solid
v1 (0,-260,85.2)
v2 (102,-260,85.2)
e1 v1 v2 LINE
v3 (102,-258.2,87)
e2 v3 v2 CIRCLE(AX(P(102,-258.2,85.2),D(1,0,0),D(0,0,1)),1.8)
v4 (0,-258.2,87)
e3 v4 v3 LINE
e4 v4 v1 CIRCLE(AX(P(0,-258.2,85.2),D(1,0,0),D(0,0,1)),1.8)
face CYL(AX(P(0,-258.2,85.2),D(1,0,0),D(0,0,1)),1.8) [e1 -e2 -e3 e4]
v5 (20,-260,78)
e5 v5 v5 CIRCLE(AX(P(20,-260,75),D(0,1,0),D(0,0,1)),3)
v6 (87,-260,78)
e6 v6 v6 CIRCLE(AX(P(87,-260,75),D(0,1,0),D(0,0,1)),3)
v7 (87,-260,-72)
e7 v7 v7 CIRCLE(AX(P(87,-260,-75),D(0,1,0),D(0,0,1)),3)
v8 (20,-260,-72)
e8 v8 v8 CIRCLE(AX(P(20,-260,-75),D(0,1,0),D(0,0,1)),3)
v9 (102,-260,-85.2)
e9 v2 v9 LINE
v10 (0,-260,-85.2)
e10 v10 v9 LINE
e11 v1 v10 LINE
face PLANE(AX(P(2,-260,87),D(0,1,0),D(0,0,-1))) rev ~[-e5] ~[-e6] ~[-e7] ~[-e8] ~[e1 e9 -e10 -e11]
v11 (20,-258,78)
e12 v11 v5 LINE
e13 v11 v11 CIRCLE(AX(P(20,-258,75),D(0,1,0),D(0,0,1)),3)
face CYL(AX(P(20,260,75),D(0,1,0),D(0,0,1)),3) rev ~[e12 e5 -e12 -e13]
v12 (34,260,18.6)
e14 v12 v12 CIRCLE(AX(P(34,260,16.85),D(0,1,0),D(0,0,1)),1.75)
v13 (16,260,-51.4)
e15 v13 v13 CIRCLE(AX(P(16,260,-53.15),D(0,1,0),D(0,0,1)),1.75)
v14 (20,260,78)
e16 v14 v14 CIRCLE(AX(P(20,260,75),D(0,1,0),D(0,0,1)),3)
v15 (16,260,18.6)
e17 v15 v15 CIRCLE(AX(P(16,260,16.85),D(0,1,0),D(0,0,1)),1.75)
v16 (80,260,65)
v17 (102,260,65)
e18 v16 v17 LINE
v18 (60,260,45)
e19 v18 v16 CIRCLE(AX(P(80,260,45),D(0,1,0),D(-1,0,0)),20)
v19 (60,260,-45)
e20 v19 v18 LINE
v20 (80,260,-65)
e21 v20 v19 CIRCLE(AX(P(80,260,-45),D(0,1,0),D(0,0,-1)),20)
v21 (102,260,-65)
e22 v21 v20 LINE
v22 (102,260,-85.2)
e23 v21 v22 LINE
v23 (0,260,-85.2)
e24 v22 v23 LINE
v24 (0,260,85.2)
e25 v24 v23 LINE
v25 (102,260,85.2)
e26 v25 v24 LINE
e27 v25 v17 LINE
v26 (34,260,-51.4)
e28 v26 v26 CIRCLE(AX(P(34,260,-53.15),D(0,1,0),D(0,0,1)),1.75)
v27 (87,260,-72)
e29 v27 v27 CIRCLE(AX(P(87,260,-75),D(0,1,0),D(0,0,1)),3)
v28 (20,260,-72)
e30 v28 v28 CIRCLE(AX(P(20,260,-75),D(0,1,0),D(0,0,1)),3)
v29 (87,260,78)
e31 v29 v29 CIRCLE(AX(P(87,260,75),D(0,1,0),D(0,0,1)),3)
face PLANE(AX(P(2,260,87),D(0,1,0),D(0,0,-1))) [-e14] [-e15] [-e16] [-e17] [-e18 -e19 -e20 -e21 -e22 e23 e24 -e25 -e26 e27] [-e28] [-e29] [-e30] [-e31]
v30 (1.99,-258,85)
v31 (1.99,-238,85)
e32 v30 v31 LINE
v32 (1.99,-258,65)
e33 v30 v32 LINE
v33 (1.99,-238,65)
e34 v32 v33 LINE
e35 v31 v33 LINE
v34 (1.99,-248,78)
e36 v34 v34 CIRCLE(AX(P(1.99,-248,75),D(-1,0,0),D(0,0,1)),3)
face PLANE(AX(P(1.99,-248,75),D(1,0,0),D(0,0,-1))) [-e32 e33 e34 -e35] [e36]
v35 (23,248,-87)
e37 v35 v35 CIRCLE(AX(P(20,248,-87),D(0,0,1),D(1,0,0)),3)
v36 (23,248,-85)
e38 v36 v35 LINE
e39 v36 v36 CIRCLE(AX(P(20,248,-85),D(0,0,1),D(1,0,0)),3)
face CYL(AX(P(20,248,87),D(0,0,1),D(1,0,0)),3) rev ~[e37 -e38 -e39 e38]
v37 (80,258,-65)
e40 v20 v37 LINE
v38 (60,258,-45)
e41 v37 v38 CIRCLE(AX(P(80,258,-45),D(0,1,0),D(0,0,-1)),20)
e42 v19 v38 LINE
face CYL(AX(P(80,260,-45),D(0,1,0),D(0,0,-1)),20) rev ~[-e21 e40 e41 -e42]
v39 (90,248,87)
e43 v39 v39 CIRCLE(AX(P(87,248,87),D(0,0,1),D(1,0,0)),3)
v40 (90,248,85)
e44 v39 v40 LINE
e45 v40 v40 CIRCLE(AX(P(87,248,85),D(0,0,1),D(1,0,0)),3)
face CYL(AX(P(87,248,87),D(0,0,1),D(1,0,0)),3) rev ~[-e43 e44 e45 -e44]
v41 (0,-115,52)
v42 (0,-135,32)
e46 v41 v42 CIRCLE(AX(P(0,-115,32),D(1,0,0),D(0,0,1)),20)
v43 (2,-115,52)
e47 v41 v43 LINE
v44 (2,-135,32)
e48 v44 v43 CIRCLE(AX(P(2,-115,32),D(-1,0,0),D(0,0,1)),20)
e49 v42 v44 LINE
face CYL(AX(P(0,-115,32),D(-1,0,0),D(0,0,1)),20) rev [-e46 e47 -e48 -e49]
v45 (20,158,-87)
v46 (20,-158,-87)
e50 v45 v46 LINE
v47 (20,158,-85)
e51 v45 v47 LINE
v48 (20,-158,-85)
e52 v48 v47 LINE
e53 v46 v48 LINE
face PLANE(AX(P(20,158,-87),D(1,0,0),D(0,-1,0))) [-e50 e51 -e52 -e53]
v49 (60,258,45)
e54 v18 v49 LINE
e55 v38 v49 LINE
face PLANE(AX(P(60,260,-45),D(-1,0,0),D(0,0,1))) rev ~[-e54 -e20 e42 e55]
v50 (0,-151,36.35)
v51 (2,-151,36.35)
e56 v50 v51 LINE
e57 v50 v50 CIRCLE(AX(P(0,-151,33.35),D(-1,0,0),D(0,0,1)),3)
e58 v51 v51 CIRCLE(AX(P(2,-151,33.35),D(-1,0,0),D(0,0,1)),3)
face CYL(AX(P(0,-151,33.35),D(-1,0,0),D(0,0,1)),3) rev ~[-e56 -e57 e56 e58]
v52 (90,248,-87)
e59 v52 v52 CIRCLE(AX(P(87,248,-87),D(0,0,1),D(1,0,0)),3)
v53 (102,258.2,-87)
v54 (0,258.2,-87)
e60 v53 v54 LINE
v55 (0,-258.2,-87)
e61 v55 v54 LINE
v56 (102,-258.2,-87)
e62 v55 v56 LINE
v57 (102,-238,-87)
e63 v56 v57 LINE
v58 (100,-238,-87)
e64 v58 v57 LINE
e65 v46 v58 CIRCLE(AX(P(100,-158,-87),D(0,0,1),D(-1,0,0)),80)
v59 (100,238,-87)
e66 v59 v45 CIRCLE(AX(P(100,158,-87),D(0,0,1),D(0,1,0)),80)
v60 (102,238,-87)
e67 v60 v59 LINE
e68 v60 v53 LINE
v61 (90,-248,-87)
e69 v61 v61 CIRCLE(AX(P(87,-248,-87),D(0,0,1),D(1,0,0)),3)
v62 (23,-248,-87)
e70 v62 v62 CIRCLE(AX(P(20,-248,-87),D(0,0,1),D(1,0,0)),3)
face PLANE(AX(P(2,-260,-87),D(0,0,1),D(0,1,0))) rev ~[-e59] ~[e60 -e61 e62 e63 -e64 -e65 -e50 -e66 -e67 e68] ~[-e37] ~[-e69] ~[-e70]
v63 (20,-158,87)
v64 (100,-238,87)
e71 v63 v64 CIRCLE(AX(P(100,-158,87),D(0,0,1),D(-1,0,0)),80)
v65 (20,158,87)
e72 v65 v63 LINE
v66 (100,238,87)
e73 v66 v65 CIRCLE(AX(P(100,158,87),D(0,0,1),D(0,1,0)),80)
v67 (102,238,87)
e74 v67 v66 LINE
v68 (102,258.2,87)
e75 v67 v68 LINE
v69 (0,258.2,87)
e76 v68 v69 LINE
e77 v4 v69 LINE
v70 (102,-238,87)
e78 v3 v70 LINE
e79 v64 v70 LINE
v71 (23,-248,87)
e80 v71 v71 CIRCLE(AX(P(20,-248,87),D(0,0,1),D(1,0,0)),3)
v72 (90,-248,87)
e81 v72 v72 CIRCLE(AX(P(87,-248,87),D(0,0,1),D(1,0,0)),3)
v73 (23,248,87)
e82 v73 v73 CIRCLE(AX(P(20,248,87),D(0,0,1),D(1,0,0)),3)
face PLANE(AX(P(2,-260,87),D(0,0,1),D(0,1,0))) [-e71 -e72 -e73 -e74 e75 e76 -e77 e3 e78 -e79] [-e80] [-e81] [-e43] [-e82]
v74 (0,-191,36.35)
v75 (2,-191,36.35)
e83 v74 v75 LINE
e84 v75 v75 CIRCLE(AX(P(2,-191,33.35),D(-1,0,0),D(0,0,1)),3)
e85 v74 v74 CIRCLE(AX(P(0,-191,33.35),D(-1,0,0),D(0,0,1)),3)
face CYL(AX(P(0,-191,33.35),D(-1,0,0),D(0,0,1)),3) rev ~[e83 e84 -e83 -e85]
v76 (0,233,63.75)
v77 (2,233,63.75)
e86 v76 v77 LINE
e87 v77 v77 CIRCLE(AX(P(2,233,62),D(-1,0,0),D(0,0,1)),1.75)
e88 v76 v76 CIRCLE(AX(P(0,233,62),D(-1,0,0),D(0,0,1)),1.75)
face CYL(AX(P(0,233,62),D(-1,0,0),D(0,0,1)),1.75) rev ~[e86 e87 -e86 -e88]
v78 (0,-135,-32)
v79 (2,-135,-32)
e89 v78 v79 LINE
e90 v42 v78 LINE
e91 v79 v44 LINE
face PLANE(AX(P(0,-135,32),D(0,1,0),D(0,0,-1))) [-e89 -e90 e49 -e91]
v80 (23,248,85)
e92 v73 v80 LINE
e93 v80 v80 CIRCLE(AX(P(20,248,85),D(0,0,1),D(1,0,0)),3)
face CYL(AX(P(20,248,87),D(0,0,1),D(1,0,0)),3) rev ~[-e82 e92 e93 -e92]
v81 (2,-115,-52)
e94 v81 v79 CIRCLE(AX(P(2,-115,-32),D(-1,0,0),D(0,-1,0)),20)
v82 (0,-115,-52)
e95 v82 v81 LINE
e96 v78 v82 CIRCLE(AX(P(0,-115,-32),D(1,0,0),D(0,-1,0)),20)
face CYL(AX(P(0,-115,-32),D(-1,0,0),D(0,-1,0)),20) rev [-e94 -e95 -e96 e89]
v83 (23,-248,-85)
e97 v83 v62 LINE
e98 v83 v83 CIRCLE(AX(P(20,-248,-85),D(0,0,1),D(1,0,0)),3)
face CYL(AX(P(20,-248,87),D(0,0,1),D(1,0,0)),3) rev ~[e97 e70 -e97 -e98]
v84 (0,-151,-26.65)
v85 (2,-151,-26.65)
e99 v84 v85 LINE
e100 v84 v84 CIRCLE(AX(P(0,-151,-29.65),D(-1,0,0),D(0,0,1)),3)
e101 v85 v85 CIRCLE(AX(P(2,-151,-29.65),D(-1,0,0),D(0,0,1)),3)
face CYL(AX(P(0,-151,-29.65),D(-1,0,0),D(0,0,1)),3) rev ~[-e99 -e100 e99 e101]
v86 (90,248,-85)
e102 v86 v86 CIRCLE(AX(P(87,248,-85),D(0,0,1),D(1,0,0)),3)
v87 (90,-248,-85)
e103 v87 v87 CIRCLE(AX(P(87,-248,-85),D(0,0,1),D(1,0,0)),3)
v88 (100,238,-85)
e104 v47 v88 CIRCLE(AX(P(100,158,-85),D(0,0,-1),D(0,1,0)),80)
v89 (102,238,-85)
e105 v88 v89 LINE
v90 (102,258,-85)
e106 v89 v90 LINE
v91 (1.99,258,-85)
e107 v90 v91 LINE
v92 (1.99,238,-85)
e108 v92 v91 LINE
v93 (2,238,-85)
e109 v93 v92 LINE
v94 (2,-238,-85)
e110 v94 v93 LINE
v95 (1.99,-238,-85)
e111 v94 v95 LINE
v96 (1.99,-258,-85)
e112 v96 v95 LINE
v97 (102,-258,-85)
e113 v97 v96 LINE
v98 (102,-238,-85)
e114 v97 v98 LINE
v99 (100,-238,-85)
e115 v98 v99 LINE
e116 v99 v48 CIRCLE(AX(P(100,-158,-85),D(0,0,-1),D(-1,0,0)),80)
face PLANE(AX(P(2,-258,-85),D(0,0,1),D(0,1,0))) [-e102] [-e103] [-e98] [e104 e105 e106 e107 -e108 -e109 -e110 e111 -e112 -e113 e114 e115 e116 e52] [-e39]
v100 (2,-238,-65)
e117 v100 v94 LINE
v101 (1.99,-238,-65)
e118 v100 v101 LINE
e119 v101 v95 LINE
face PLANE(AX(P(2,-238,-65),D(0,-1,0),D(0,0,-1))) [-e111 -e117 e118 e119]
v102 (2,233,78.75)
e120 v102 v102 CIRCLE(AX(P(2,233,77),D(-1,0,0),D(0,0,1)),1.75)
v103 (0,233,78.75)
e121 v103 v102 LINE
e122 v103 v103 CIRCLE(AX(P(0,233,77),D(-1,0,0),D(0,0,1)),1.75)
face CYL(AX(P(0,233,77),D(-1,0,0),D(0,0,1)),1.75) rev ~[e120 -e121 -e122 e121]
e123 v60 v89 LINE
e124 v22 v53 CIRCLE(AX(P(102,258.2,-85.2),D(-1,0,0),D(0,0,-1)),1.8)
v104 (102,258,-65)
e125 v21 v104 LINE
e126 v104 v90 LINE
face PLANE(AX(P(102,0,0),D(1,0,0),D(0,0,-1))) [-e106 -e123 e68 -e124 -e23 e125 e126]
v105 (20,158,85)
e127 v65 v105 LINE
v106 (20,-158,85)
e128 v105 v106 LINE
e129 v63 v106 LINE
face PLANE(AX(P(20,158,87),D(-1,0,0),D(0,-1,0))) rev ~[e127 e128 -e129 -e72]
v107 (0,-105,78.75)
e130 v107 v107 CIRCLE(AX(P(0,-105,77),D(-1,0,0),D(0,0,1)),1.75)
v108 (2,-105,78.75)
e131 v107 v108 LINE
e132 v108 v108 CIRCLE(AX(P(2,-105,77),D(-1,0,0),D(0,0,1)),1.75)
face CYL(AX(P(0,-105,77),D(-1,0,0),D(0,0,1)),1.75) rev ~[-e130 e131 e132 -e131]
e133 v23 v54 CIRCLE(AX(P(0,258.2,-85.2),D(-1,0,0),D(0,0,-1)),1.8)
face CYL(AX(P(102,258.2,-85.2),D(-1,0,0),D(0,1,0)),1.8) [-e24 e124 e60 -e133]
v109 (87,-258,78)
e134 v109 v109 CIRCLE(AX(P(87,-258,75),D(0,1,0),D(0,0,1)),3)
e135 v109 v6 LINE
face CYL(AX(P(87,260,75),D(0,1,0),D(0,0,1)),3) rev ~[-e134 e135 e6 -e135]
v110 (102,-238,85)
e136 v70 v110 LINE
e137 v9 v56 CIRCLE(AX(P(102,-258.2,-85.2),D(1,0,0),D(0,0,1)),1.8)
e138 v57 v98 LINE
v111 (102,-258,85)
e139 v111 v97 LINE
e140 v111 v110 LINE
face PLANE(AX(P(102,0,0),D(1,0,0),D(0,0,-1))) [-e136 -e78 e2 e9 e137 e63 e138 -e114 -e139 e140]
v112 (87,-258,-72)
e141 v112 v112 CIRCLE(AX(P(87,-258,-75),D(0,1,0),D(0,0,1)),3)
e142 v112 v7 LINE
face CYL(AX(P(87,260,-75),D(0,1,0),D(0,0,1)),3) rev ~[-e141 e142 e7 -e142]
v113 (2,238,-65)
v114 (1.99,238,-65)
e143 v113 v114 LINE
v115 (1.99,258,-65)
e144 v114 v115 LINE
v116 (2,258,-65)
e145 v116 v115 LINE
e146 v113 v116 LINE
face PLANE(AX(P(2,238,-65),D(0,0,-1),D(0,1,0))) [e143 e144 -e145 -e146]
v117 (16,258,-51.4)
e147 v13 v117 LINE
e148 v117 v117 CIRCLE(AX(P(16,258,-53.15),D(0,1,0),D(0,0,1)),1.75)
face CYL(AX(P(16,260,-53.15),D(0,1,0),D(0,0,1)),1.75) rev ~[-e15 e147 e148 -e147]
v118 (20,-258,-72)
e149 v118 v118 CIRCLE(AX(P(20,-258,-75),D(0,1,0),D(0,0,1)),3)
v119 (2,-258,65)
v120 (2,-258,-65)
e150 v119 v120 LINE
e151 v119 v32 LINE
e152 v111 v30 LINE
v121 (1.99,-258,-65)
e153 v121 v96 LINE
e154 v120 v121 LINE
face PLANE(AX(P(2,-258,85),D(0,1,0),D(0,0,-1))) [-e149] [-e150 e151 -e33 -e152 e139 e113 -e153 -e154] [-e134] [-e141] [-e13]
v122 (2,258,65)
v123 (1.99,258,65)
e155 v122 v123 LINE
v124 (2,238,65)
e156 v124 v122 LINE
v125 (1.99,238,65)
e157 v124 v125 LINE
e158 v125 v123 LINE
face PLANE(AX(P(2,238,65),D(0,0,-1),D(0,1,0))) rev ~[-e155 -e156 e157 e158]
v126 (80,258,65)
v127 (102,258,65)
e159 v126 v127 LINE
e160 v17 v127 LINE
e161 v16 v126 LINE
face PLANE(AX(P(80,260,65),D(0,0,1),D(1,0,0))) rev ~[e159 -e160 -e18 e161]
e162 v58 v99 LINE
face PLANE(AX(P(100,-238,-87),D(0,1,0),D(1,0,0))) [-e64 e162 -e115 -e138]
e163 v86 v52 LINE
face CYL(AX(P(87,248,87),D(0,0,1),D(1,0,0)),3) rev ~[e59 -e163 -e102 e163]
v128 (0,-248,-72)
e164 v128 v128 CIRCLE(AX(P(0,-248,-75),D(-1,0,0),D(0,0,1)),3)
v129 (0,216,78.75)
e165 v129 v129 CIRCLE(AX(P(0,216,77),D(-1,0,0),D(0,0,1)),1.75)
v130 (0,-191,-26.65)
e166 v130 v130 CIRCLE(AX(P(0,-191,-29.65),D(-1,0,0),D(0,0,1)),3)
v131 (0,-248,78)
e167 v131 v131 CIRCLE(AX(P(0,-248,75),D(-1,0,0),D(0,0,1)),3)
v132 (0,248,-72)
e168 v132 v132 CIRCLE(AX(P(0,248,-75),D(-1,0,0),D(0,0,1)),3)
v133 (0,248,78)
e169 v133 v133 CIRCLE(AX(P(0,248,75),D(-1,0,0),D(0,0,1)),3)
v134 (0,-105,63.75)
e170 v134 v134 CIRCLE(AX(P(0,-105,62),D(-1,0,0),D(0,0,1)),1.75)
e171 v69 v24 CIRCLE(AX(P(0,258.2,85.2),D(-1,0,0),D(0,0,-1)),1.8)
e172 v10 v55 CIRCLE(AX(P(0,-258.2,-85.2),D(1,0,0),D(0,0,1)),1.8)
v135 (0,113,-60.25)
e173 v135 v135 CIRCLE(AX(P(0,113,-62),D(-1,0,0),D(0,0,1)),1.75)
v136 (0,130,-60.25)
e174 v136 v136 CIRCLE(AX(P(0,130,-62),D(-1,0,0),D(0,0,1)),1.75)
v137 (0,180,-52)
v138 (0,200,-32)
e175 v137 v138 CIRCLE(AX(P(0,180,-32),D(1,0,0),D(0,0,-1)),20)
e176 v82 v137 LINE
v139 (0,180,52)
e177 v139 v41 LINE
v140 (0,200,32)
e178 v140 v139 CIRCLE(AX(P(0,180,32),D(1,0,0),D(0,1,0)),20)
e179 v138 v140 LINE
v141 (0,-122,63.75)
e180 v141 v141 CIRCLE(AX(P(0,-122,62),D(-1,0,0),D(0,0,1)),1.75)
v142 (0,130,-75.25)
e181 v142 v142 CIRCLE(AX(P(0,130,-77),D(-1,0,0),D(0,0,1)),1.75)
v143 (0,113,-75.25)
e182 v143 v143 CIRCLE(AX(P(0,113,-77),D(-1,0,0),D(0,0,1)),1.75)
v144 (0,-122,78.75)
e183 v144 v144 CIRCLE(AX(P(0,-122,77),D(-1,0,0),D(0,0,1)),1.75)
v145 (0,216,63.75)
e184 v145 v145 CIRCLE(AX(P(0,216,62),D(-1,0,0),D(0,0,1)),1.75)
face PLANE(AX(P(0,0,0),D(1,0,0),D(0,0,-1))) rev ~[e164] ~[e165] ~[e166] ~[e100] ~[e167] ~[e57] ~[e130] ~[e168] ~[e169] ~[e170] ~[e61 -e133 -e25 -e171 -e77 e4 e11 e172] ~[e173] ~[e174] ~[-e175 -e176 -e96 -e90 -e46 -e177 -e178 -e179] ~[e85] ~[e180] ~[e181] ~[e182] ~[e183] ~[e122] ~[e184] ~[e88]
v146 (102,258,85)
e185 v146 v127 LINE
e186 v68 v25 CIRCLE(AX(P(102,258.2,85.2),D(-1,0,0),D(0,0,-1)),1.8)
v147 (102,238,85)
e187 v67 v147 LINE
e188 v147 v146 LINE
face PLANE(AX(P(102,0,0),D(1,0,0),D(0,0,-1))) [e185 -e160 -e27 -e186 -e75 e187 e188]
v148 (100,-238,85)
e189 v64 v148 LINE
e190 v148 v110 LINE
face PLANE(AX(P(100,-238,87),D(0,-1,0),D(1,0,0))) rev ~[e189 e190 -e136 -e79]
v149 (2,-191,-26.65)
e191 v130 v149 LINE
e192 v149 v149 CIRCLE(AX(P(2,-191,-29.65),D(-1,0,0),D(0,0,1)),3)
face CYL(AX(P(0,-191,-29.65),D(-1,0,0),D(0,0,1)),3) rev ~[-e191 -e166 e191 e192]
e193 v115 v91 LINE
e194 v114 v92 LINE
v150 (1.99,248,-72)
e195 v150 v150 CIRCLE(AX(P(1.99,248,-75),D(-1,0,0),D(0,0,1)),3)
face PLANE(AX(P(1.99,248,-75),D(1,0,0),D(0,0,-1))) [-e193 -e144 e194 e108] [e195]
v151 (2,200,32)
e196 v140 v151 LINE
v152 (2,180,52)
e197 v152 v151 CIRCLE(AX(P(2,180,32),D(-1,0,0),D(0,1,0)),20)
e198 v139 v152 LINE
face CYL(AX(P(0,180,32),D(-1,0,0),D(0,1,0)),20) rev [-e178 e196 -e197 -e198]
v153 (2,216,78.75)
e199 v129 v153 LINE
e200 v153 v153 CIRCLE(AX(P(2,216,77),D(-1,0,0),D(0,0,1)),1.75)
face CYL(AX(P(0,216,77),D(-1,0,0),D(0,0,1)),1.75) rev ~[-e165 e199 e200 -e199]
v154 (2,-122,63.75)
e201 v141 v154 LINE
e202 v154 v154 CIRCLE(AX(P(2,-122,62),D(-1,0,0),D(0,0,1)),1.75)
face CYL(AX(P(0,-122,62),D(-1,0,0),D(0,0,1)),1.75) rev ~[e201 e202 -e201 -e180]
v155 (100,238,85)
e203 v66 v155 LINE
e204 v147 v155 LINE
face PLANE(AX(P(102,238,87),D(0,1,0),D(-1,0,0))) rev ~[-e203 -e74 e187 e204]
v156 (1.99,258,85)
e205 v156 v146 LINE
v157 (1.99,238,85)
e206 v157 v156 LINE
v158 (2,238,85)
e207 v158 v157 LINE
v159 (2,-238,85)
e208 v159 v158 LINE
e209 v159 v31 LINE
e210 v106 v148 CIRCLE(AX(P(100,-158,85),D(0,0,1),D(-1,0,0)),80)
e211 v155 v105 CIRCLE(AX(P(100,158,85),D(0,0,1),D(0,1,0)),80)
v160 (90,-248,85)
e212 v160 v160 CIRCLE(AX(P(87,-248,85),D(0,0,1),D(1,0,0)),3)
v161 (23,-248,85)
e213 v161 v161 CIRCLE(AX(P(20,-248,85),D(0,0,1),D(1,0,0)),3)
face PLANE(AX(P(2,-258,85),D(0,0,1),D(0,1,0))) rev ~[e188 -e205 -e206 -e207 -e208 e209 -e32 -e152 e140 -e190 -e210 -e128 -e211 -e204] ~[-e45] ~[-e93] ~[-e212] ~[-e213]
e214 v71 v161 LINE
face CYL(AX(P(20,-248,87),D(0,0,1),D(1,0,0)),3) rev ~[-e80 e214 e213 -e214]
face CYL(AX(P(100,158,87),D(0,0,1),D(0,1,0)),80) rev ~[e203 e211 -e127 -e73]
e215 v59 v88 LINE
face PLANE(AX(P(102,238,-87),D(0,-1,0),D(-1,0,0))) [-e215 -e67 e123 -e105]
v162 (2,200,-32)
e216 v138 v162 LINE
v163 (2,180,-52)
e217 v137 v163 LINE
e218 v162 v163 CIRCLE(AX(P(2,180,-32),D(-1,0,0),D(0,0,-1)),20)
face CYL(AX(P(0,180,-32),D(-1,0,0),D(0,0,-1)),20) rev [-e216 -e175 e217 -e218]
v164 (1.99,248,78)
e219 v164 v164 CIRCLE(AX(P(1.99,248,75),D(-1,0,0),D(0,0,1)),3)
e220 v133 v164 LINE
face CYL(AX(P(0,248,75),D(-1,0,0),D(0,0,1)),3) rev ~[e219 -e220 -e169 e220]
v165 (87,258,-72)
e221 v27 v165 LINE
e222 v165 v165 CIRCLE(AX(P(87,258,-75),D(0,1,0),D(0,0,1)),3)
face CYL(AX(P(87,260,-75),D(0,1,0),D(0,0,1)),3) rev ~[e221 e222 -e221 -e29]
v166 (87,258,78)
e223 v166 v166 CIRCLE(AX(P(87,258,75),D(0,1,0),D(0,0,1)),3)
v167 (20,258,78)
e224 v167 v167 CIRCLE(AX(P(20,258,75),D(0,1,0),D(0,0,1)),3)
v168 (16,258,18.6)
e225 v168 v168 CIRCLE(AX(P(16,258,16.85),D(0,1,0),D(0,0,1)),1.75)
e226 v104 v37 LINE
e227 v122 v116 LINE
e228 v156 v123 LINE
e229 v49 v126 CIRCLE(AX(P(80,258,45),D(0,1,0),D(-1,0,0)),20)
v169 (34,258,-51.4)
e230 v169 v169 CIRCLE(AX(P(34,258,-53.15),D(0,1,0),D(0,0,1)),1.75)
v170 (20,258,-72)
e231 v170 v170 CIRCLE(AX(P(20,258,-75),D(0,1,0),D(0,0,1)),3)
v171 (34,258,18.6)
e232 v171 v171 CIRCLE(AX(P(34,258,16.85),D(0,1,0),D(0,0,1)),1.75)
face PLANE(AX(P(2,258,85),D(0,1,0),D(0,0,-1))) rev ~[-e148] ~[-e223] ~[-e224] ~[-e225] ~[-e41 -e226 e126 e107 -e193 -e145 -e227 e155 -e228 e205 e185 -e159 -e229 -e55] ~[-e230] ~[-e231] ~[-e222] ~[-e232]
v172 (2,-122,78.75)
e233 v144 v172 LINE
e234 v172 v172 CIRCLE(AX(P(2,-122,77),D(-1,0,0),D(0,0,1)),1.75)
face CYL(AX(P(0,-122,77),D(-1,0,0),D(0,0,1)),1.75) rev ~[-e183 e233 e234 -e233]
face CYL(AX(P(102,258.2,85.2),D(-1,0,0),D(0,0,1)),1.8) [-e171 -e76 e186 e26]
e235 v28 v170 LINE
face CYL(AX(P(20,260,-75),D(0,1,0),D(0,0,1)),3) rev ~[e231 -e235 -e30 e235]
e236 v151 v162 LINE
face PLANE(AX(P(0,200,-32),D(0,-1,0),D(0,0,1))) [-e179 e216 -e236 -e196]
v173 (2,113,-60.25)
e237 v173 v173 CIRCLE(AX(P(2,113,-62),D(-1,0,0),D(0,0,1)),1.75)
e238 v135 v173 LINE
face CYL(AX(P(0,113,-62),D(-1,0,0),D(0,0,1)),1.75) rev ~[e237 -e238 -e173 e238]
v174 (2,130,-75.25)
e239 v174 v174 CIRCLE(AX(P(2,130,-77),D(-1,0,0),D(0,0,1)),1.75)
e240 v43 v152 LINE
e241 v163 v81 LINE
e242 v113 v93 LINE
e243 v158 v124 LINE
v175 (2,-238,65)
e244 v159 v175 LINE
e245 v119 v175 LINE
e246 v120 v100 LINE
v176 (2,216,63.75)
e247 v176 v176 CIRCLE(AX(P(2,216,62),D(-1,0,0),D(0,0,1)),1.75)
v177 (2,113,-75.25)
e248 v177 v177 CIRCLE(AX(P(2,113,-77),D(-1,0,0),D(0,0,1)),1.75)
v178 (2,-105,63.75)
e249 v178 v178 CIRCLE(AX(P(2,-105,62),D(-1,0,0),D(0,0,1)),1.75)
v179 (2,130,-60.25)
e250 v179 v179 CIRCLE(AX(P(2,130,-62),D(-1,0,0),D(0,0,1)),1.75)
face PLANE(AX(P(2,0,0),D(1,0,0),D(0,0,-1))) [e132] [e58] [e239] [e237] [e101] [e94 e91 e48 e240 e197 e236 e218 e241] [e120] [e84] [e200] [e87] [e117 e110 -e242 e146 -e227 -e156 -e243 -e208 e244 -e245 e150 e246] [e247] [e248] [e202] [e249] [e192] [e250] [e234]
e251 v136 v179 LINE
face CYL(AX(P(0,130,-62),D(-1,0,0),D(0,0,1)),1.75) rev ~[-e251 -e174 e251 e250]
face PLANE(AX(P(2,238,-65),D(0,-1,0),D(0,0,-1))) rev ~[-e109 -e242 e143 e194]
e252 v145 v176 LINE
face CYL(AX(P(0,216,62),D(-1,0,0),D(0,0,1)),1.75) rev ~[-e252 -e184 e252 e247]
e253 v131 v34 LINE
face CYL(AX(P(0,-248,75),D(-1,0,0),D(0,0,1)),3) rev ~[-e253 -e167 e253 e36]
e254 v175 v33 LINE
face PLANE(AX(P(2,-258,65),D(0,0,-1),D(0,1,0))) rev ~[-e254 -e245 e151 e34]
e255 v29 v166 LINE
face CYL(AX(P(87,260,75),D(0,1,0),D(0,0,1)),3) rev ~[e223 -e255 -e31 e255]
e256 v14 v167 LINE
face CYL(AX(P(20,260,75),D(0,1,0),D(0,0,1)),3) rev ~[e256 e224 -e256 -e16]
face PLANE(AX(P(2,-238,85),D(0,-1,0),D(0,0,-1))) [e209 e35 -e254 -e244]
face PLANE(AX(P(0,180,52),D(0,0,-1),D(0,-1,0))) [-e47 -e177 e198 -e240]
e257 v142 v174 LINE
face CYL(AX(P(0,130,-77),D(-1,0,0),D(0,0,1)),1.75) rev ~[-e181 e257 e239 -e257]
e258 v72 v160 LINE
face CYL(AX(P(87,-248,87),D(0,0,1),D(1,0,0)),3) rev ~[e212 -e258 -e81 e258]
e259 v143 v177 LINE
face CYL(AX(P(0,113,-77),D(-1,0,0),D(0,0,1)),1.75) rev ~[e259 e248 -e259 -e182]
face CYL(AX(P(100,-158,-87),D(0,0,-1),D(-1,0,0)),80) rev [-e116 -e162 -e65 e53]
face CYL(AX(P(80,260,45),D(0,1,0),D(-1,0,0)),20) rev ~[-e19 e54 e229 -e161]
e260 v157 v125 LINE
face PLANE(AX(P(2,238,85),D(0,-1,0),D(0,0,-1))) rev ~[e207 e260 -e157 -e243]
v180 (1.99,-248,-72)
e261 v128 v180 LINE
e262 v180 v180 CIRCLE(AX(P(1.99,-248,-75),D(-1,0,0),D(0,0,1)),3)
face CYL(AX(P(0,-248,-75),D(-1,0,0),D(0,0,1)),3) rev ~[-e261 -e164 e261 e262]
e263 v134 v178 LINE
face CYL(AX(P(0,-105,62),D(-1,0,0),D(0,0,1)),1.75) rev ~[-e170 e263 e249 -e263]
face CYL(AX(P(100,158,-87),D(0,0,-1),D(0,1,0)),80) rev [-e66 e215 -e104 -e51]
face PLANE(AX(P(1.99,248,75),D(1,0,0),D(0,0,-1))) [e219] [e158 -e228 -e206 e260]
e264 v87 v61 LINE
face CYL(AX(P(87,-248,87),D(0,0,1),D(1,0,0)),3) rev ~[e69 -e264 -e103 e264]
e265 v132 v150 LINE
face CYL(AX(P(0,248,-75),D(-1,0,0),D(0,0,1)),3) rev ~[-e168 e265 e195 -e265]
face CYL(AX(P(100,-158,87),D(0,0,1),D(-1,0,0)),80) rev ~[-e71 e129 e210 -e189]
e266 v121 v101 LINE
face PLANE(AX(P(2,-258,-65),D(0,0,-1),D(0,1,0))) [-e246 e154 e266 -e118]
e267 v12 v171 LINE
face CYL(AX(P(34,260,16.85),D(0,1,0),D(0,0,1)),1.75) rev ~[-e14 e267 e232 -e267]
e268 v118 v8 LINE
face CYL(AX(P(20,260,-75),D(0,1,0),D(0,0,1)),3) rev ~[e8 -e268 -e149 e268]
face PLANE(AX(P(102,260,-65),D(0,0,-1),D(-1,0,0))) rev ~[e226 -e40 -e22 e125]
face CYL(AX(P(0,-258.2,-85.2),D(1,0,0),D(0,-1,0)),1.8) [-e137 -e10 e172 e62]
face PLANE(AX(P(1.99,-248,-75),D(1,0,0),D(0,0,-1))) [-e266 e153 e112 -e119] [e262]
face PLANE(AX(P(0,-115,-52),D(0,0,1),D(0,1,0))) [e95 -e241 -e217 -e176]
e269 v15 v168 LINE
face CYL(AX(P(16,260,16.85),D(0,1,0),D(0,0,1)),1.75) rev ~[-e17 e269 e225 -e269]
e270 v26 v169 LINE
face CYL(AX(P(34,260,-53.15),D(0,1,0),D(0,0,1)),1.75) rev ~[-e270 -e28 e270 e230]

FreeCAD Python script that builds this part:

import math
import FreeCAD as App
import Part
import Sketcher
from FreeCAD import Vector
Q = App.Units.Quantity


def edges_at(feature, points):
    """Names of the edges that pass closest to the given points."""
    edges = feature.Shape.Edges
    near = lambda p: min(range(len(edges)), key=lambda i: edges[i].distToShape(Part.Vertex(*p))[0])
    return sorted({f"Edge{near(p) + 1}" for p in points})

doc = App.newDocument("Part")
body = doc.addObject("PartDesign::Body", "Body")

sketch1 = body.newObject("Sketcher::SketchObject", "Sketch")
sketch1.AttachmentSupport = (doc.getObject("YZ_Plane"), [""])
sketch1.MapMode = "FlatFace"
sketch1.addGeometry([
    Part.LineSegment(Vector(260, 87, 0), Vector(-260, 87, 0)),
    Part.LineSegment(Vector(-260, 87, 0), Vector(-260, -87, 0)),
    Part.LineSegment(Vector(-260, -87, 0), Vector(260, -87, 0)),
    Part.LineSegment(Vector(260, -87, 0), Vector(260, 87, 0)),
], False)
sketch1.addConstraint([
    Sketcher.Constraint("Coincident", 0, 2, 1, 1),
    Sketcher.Constraint("Coincident", 1, 2, 2, 1),
    Sketcher.Constraint("Coincident", 2, 2, 3, 1),
    Sketcher.Constraint("Coincident", 3, 2, 0, 1),
    Sketcher.Constraint("Horizontal", 0),
    Sketcher.Constraint("Vertical", 1),
    Sketcher.Constraint("Horizontal", 2),
    Sketcher.Constraint("Vertical", 3),
    Sketcher.Constraint("Symmetric", 0, 2, 2, 2, -1, 1),
    Sketcher.Constraint("DistanceX", 0, 2, 0, 1, Q("520 mm")),
    Sketcher.Constraint("DistanceY", 1, 2, 1, 1, Q("174 mm")),
])
pad1 = body.newObject("PartDesign::Pad", "Pad")
pad1.Profile = sketch1
pad1.Length = 2

sketch2 = body.newObject("Sketcher::SketchObject", "Sketch001")
sketch2.AttachmentSupport = (doc.getObject("YZ_Plane"), [""])
sketch2.MapMode = "FlatFace"
sketch2.AttachmentOffset = App.Placement(Vector(0, 0, 2), App.Rotation())
sketch2.addGeometry([
    Part.LineSegment(Vector(260, 87, 0), Vector(-260, 87, 0)),
    Part.LineSegment(Vector(-260, 87, 0), Vector(-260, -87, 0)),
    Part.LineSegment(Vector(-260, -87, 0), Vector(260, -87, 0)),
    Part.LineSegment(Vector(260, -87, 0), Vector(260, 87, 0)),
    Part.LineSegment(Vector(-258, -85, 0), Vector(-258, 85, 0)),
    Part.LineSegment(Vector(-258, 85, 0), Vector(258, 85, 0)),
    Part.LineSegment(Vector(258, 85, 0), Vector(258, -85, 0)),
    Part.LineSegment(Vector(258, -85, 0), Vector(-258, -85, 0)),
], False)
sketch2.addConstraint([
    Sketcher.Constraint("Coincident", 0, 2, 1, 1),
    Sketcher.Constraint("Coincident", 1, 2, 2, 1),
    Sketcher.Constraint("Coincident", 2, 2, 3, 1),
    Sketcher.Constraint("Coincident", 3, 2, 0, 1),
    Sketcher.Constraint("Coincident", 4, 2, 5, 1),
    Sketcher.Constraint("Coincident", 5, 2, 6, 1),
    Sketcher.Constraint("Coincident", 6, 2, 7, 1),
    Sketcher.Constraint("Coincident", 7, 2, 4, 1),
    Sketcher.Constraint("Horizontal", 0),
    Sketcher.Constraint("Vertical", 1),
    Sketcher.Constraint("Horizontal", 2),
    Sketcher.Constraint("Vertical", 3),
    Sketcher.Constraint("Vertical", 4),
    Sketcher.Constraint("Horizontal", 5),
    Sketcher.Constraint("Vertical", 6),
    Sketcher.Constraint("Horizontal", 7),
    Sketcher.Constraint("Symmetric", 0, 2, 2, 2, -1, 1),
    Sketcher.Constraint("Symmetric", 4, 2, 6, 2, -1, 1),
    Sketcher.Constraint("DistanceX", 0, 2, 0, 1, Q("520 mm")),
    Sketcher.Constraint("DistanceX", 5, 1, 5, 2, Q("516 mm")),
    Sketcher.Constraint("DistanceY", 1, 2, 1, 1, Q("174 mm")),
    Sketcher.Constraint("DistanceY", 4, 1, 4, 2, Q("170 mm")),
])
pad2 = body.newObject("PartDesign::Pad", "Pad001")
pad2.Profile = sketch2
pad2.Length = 100

sketch3 = body.newObject("Sketcher::SketchObject", "Sketch002")
sketch3.AttachmentSupport = (doc.getObject("XY_Plane"), [""])
sketch3.MapMode = "FlatFace"
sketch3.AttachmentOffset = App.Placement(Vector(0, 0, -87), App.Rotation())
sketch3.addGeometry([
    Part.LineSegment(Vector(102, 238, 0), Vector(100, 238, 0)),
    Part.ArcOfCircle(Part.Circle(Vector(100, 158, 0), Vector(0, 0, 1), 80), math.radians(90), math.radians(180)),
    Part.LineSegment(Vector(20, 158, 0), Vector(20, -158, 0)),
    Part.ArcOfCircle(Part.Circle(Vector(100, -158, 0), Vector(0, 0, 1), 80), math.radians(180), math.radians(270)),
    Part.LineSegment(Vector(100, -238, 0), Vector(102, -238, 0)),
    Part.LineSegment(Vector(102, -238, 0), Vector(102, 238, 0)),
], False)
sketch3.addConstraint([
    Sketcher.Constraint("Tangent", 0, 2, 1, 1),
    Sketcher.Constraint("Tangent", 1, 2, 2, 1),
    Sketcher.Constraint("Tangent", 2, 2, 3, 1),
    Sketcher.Constraint("Tangent", 3, 2, 4, 1),
    Sketcher.Constraint("Coincident", 4, 2, 5, 1),
    Sketcher.Constraint("Coincident", 5, 2, 0, 1),
    Sketcher.Constraint("Horizontal", 0),
    Sketcher.Constraint("Vertical", 2),
    Sketcher.Constraint("Horizontal", 4),
    Sketcher.Constraint("Vertical", 5),
    Sketcher.Constraint("Equal", 1, 3),
    Sketcher.Constraint("Radius", 1, Q("80 mm")),
    Sketcher.Constraint("DistanceX", 0, 2, 0, 1, Q("2 mm")),
    Sketcher.Constraint("DistanceY", 2, 2, 2, 1, Q("316 mm")),
    Sketcher.Constraint("DistanceX", -1, 1, 1, 3, Q("100 mm")),
    Sketcher.Constraint("DistanceY", -1, 1, 1, 3, Q("158 mm")),
])
pocket1 = body.newObject("PartDesign::Pocket", "Pocket")
pocket1.Profile = sketch3
pocket1.Length = 10
pocket1.Reversed = True

sketch4 = body.newObject("Sketcher::SketchObject", "Sketch003")
sketch4.AttachmentSupport = (doc.getObject("XY_Plane"), [""])
sketch4.MapMode = "FlatFace"
sketch4.AttachmentOffset = App.Placement(Vector(0, 0, 87), App.Rotation())
sketch4.addGeometry([
    Part.Circle(Vector(20, 248, 0), Vector(0, 0, 1), 3),
    Part.Circle(Vector(87, 248, 0), Vector(0, 0, 1), 3),
    Part.Circle(Vector(20, -248, 0), Vector(0, 0, 1), 3),
    Part.Circle(Vector(87, -248, 0), Vector(0, 0, 1), 3),
], False)
sketch4.addConstraint([
    Sketcher.Constraint("Equal", 0, 1),
    Sketcher.Constraint("Equal", 1, 2),
    Sketcher.Constraint("Equal", 2, 3),
    Sketcher.Constraint("Symmetric", 0, 3, 2, 3, -1),
    Sketcher.Constraint("Symmetric", 1, 3, 3, 3, -1),
    Sketcher.Constraint("Horizontal", 0, 3, 1, 3),
    Sketcher.Constraint("Diameter", 0, Q("6 mm")),
    Sketcher.Constraint("DistanceX", -1, 1, 0, 3, Q("20 mm")),
    Sketcher.Constraint("DistanceY", -1, 1, 0, 3, Q("248 mm")),
    Sketcher.Constraint("DistanceX", -1, 1, 1, 3, Q("87 mm")),
])
pocket2 = body.newObject("PartDesign::Pocket", "Pocket001")
pocket2.Profile = sketch4
pocket2.Type = "ThroughAll"

sketch5 = body.newObject("Sketcher::SketchObject", "Sketch004")
sketch5.AttachmentSupport = (doc.getObject("XZ_Plane"), [""])
sketch5.MapMode = "FlatFace"
sketch5.AttachmentOffset = App.Placement(Vector(0, 0, -260), App.Rotation())
sketch5.addGeometry([
    Part.Circle(Vector(87, -75, 0), Vector(0, 0, 1), 3),
    Part.Circle(Vector(20, -75, 0), Vector(0, 0, 1), 3),
    Part.Circle(Vector(87, 75, 0), Vector(0, 0, 1), 3),
    Part.Circle(Vector(20, 75, 0), Vector(0, 0, 1), 3),
], False)
sketch5.addConstraint([
    Sketcher.Constraint("Equal", 0, 1),
    Sketcher.Constraint("Equal", 1, 2),
    Sketcher.Constraint("Equal", 2, 3),
    Sketcher.Constraint("Symmetric", 0, 3, 2, 3, -1),
    Sketcher.Constraint("Symmetric", 1, 3, 3, 3, -1),
    Sketcher.Constraint("Horizontal", 0, 3, 1, 3),
    Sketcher.Constraint("Diameter", 0, Q("6 mm")),
    Sketcher.Constraint("DistanceX", -1, 1, 0, 3, Q("87 mm")),
    Sketcher.Constraint("DistanceY", 0, 3, -1, 1, Q("75 mm")),
    Sketcher.Constraint("DistanceX", -1, 1, 1, 3, Q("20 mm")),
])
pocket3 = body.newObject("PartDesign::Pocket", "Pocket002")
pocket3.Profile = sketch5
pocket3.Type = "ThroughAll"
pocket3.Reversed = True

sketch6 = body.newObject("Sketcher::SketchObject", "Sketch005")
sketch6.AttachmentSupport = (doc.getObject("XY_Plane"), [""])
sketch6.MapMode = "FlatFace"
sketch6.AttachmentOffset = App.Placement(Vector(0, 0, 87), App.Rotation())
sketch6.addGeometry([
    Part.LineSegment(Vector(100, 238, 0), Vector(102, 238, 0)),
    Part.LineSegment(Vector(102, 238, 0), Vector(102, -238, 0)),
    Part.LineSegment(Vector(102, -238, 0), Vector(100, -238, 0)),
    Part.ArcOfCircle(Part.Circle(Vector(100, -158, 0), Vector(0, 0, 1), 80), math.radians(180), math.radians(270)),
    Part.LineSegment(Vector(20, -158, 0), Vector(20, 158, 0)),
    Part.ArcOfCircle(Part.Circle(Vector(100, 158, 0), Vector(0, 0, 1), 80), math.radians(90), math.radians(180)),
], False)
sketch6.addConstraint([
    Sketcher.Constraint("Coincident", 0, 2, 1, 1),
    Sketcher.Constraint("Coincident", 1, 2, 2, 1),
    Sketcher.Constraint("Tangent", 2, 2, 3, 2),
    Sketcher.Constraint("Tangent", 3, 1, 4, 1),
    Sketcher.Constraint("Tangent", 4, 2, 5, 2),
    Sketcher.Constraint("Tangent", 5, 1, 0, 1),
    Sketcher.Constraint("Horizontal", 0),
    Sketcher.Constraint("Vertical", 1),
    Sketcher.Constraint("Horizontal", 2),
    Sketcher.Constraint("Vertical", 4),
    Sketcher.Constraint("Equal", 3, 5),
    Sketcher.Constraint("Radius", 3, Q("80 mm")),
    Sketcher.Constraint("DistanceX", 0, 1, 0, 2, Q("2 mm")),
    Sketcher.Constraint("DistanceY", 1, 2, 1, 1, Q("476 mm")),
    Sketcher.Constraint("DistanceX", -1, 1, 3, 3, Q("100 mm")),
    Sketcher.Constraint("DistanceY", 3, 3, -1, 1, Q("158 mm")),
])
pocket4 = body.newObject("PartDesign::Pocket", "Pocket003")
pocket4.Profile = sketch6
pocket4.Length = 10

sketch7 = body.newObject("Sketcher::SketchObject", "Sketch006")
sketch7.AttachmentSupport = (doc.getObject("XZ_Plane"), [""])
sketch7.MapMode = "FlatFace"
sketch7.AttachmentOffset = App.Placement(Vector(0, 0, -260), App.Rotation())
sketch7.addGeometry([
    Part.Circle(Vector(34, -53.1, 0), Vector(0, 0, 1), 1.8),
    Part.Circle(Vector(16, -53.1, 0), Vector(0, 0, 1), 1.8),
    Part.Circle(Vector(16, 16.9, 0), Vector(0, 0, 1), 1.8),
    Part.Circle(Vector(34, 16.9, 0), Vector(0, 0, 1), 1.8),
    Part.LineSegment(Vector(102, -65, 0), Vector(80, -65, 0)),
    Part.ArcOfCircle(Part.Circle(Vector(80, -45, 0), Vector(0, 0, 1), 20), math.radians(180), math.radians(270)),
    Part.LineSegment(Vector(60, -45, 0), Vector(60, 45, 0)),
    Part.ArcOfCircle(Part.Circle(Vector(80, 45, 0), Vector(0, 0, 1), 20), math.radians(90), math.radians(180)),
    Part.LineSegment(Vector(80, 65, 0), Vector(102, 65, 0)),
    Part.LineSegment(Vector(102, 65, 0), Vector(102, -65, 0)),
], False)
sketch7.addConstraint([
    Sketcher.Constraint("Tangent", 4, 2, 5, 2),
    Sketcher.Constraint("Tangent", 5, 1, 6, 1),
    Sketcher.Constraint("Tangent", 6, 2, 7, 2),
    Sketcher.Constraint("Tangent", 7, 1, 8, 1),
    Sketcher.Constraint("Coincident", 8, 2, 9, 1),
    Sketcher.Constraint("Coincident", 9, 2, 4, 1),
    Sketcher.Constraint("Horizontal", 4),
    Sketcher.Constraint("Vertical", 6),
    Sketcher.Constraint("Horizontal", 8),
    Sketcher.Constraint("Vertical", 9),
    Sketcher.Constraint("Equal", 0, 1),
    Sketcher.Constraint("Equal", 1, 2),
    Sketcher.Constraint("Equal", 2, 3),
    Sketcher.Constraint("Equal", 5, 7),
    Sketcher.Constraint("Horizontal", 0, 3, 1, 3),
    Sketcher.Constraint("Horizontal", 2, 3, 3, 3),
    Sketcher.Constraint("Vertical", 1, 3, 2, 3),
    Sketcher.Constraint("Vertical", 0, 3, 3, 3),
    Sketcher.Constraint("Radius", 5, Q("20 mm")),
    Sketcher.Constraint("Diameter", 0, Q("3.5 mm")),
    Sketcher.Constraint("DistanceX", 4, 2, 4, 1, Q("22 mm")),
    Sketcher.Constraint("DistanceY", 6, 1, 6, 2, Q("90 mm")),
    Sketcher.Constraint("DistanceX", -1, 1, 0, 3, Q("34 mm")),
    Sketcher.Constraint("DistanceX", -1, 1, 1, 3, Q("16 mm")),
    Sketcher.Constraint("DistanceX", -1, 1, 5, 3, Q("80 mm")),
    Sketcher.Constraint("DistanceY", 5, 3, -1, 1, Q("45 mm")),
    Sketcher.Constraint("DistanceY", 1, 3, 2, 3, Q("70 mm")),
    Sketcher.Constraint("DistanceY", 0, 3, -1, 1, Q("53.15 mm")),
])
pocket5 = body.newObject("PartDesign::Pocket", "Pocket004")
pocket5.Profile = sketch7
pocket5.Length = 10
pocket5.Reversed = True
doc.recompute()

fillet = body.newObject("PartDesign::Fillet", "Fillet")
fillet.Base = (pocket5, edges_at(pocket5, [
    (51, 260, 87),
    (51, 260, -87),
    (51, -260, -87),
    (51, -260, 87),
]))
fillet.Radius = 1.8

sketch8 = body.newObject("Sketcher::SketchObject", "Sketch007")
sketch8.AttachmentSupport = (doc.getObject("YZ_Plane"), [""])
sketch8.MapMode = "FlatFace"
sketch8.addGeometry([
    Part.Circle(Vector(248, -75, 0), Vector(0, 0, 1), 3),
    Part.Circle(Vector(248, 75, 0), Vector(0, 0, 1), 3),
    Part.Circle(Vector(-248, 75, 0), Vector(0, 0, 1), 3),
    Part.Circle(Vector(-248, -75, 0), Vector(0, 0, 1), 3),
], False)
sketch8.addConstraint([
    Sketcher.Constraint("Equal", 0, 1),
    Sketcher.Constraint("Equal", 1, 2),
    Sketcher.Constraint("Equal", 2, 3),
    Sketcher.Constraint("Symmetric", 0, 3, 2, 3, -1, 1),
    Sketcher.Constraint("Symmetric", 1, 3, 3, 3, -1, 1),
    Sketcher.Constraint("Symmetric", 1, 3, 2, 3, -2),
    Sketcher.Constraint("Diameter", 0, Q("6 mm")),
    Sketcher.Constraint("DistanceX", -1, 1, 0, 3, Q("248 mm")),
    Sketcher.Constraint("DistanceY", 0, 3, -1, 1, Q("75 mm")),
])
pocket6 = body.newObject("PartDesign::Pocket", "Pocket005")
pocket6.Profile = sketch8
pocket6.Length = 10
pocket6.Reversed = True

sketch9 = body.newObject("Sketcher::SketchObject", "Sketch008")
sketch9.AttachmentSupport = (doc.getObject("YZ_Plane"), [""])
sketch9.MapMode = "FlatFace"
sketch9.addGeometry([
    Part.Circle(Vector(-151, -29.6, 0), Vector(0, 0, 1), 3),
    Part.Circle(Vector(-151, 33.4, 0), Vector(0, 0, 1), 3),
    Part.Circle(Vector(-191, -29.6, 0), Vector(0, 0, 1), 3),
    Part.Circle(Vector(-191, 33.4, 0), Vector(0, 0, 1), 3),
    Part.Circle(Vector(233, 62, 0), Vector(0, 0, 1), 1.8),
    Part.Circle(Vector(233, 77, 0), Vector(0, 0, 1), 1.8),
    Part.Circle(Vector(216, 62, 0), Vector(0, 0, 1), 1.8),
    Part.Circle(Vector(216, 77, 0), Vector(0, 0, 1), 1.8),
    Part.Circle(Vector(130, -77, 0), Vector(0, 0, 1), 1.8),
    Part.Circle(Vector(130, -62, 0), Vector(0, 0, 1), 1.8),
    Part.Circle(Vector(113, -62, 0), Vector(0, 0, 1), 1.8),
    Part.Circle(Vector(113, -77, 0), Vector(0, 0, 1), 1.8),
    Part.Circle(Vector(-105, 62, 0), Vector(0, 0, 1), 1.8),
    Part.Circle(Vector(-105, 77, 0), Vector(0, 0, 1), 1.8),
    Part.Circle(Vector(-122, 62, 0), Vector(0, 0, 1), 1.8),
    Part.Circle(Vector(-122, 77, 0), Vector(0, 0, 1), 1.8),
    Part.LineSegment(Vector(200, 32, 0), Vector(200, -32, 0)),
    Part.ArcOfCircle(Part.Circle(Vector(180, -32, 0), Vector(0, 0, 1), 20), math.radians(-90), math.radians(0)),
    Part.LineSegment(Vector(180, -52, 0), Vector(-115, -52, 0)),
    Part.ArcOfCircle(Part.Circle(Vector(-115, -32, 0), Vector(0, 0, 1), 20), math.radians(180), math.radians(270)),
    Part.LineSegment(Vector(-135, -32, 0), Vector(-135, 32, 0)),
    Part.ArcOfCircle(Part.Circle(Vector(-115, 32, 0), Vector(0, 0, 1), 20), math.radians(90), math.radians(180)),
    Part.LineSegment(Vector(-115, 52, 0), Vector(180, 52, 0)),
    Part.ArcOfCircle(Part.Circle(Vector(180, 32, 0), Vector(0, 0, 1), 20), math.radians(0), math.radians(90)),
], False)
sketch9.addConstraint([
    Sketcher.Constraint("Tangent", 16, 2, 17, 2),
    Sketcher.Constraint("Tangent", 17, 1, 18, 1),
    Sketcher.Constraint("Tangent", 18, 2, 19, 2),
    Sketcher.Constraint("Tangent", 19, 1, 20, 1),
    Sketcher.Constraint("Tangent", 20, 2, 21, 2),
    Sketcher.Constraint("Tangent", 21, 1, 22, 1),
    Sketcher.Constraint("Tangent", 22, 2, 23, 2),
    Sketcher.Constraint("Tangent", 23, 1, 16, 1),
    Sketcher.Constraint("Vertical", 16),
    Sketcher.Constraint("Horizontal", 18),
    Sketcher.Constraint("Vertical", 20),
    Sketcher.Constraint("Horizontal", 22),
    Sketcher.Constraint("Equal", 0, 1),
    Sketcher.Constraint("Equal", 1, 2),
    Sketcher.Constraint("Equal", 2, 3),
    Sketcher.Constraint("Equal", 4, 5),
    Sketcher.Constraint("Equal", 5, 6),
    Sketcher.Constraint("Equal", 6, 7),
    Sketcher.Constraint("Equal", 7, 8),
    Sketcher.Constraint("Equal", 8, 9),
    Sketcher.Constraint("Equal", 9, 10),
    Sketcher.Constraint("Equal", 10, 11),
    Sketcher.Constraint("Equal", 11, 12),
    Sketcher.Constraint("Equal", 12, 13),
    Sketcher.Constraint("Equal", 13, 14),
    Sketcher.Constraint("Equal", 14, 15),
    Sketcher.Constraint("Equal", 17, 19),
    Sketcher.Constraint("Equal", 19, 21),
    Sketcher.Constraint("Equal", 21, 23),
    Sketcher.Constraint("Horizontal", 0, 3, 2, 3),
    Sketcher.Constraint("Horizontal", 1, 3, 3, 3),
    Sketcher.Constraint("Horizontal", 4, 3, 6, 3),
    Sketcher.Constraint("Horizontal", 5, 3, 7, 3),
    Sketcher.Constraint("Horizontal", 9, 3, 10, 3),
    Sketcher.Constraint("Horizontal", 8, 3, 11, 3),
    Sketcher.Constraint("Horizontal", 6, 3, 12, 3),
    Sketcher.Constraint("Horizontal", 7, 3, 13, 3),
    Sketcher.Constraint("Horizontal", 12, 3, 14, 3),
    Sketcher.Constraint("Horizontal", 13, 3, 15, 3),
    Sketcher.Constraint("Vertical", 0, 3, 1, 3),
    Sketcher.Constraint("Vertical", 2, 3, 3, 3),
    Sketcher.Constraint("Vertical", 4, 3, 5, 3),
    Sketcher.Constraint("Vertical", 6, 3, 7, 3),
    Sketcher.Constraint("Vertical", 8, 3, 9, 3),
    Sketcher.Constraint("Vertical", 10, 3, 11, 3),
    Sketcher.Constraint("Vertical", 12, 3, 13, 3),
    Sketcher.Constraint("Vertical", 14, 3, 15, 3),
    Sketcher.Constraint("Diameter", 0, Q("6 mm")),
    Sketcher.Constraint("Radius", 17, Q("20 mm")),
    Sketcher.Constraint("Diameter", 4, Q("3.5 mm")),
    Sketcher.Constraint("DistanceX", 18, 2, 18, 1, Q("295 mm")),
    Sketcher.Constraint("DistanceY", 16, 2, 16, 1, Q("64 mm")),
    Sketcher.Constraint("DistanceX", 0, 3, -1, 1, Q("151 mm")),
    Sketcher.Constraint("DistanceX", 2, 3, -1, 1, Q("191 mm")),
    Sketcher.Constraint("DistanceX", -1, 1, 4, 3, Q("233 mm")),
    Sketcher.Constraint("DistanceY", -1, 1, 4, 3, Q("62 mm")),
    Sketcher.Constraint("DistanceY", -1, 1, 5, 3, Q("77 mm")),
    Sketcher.Constraint("DistanceX", -1, 1, 6, 3, Q("216 mm")),
    Sketcher.Constraint("DistanceX", -1, 1, 8, 3, Q("130 mm")),
    Sketcher.Constraint("DistanceY", 8, 3, -1, 1, Q("77 mm")),
    Sketcher.Constraint("DistanceY", 9, 3, -1, 1, Q("62 mm")),
    Sketcher.Constraint("DistanceX", -1, 1, 10, 3, Q("113 mm")),
    Sketcher.Constraint("DistanceX", 12, 3, -1, 1, Q("105 mm")),
    Sketcher.Constraint("DistanceX", 14, 3, -1, 1, Q("122 mm")),
    Sketcher.Constraint("DistanceX", -1, 1, 17, 3, Q("180 mm")),
    Sketcher.Constraint("DistanceY", 17, 3, -1, 1, Q("32 mm")),
    Sketcher.Constraint("DistanceY", 0, 3, 1, 3, Q("63 mm")),
    Sketcher.Constraint("DistanceY", 0, 3, -1, 1, Q("29.65 mm")),
])
pocket7 = body.newObject("PartDesign::Pocket", "Pocket006")
pocket7.Profile = sketch9
pocket7.Type = "ThroughAll"
pocket7.Reversed = True

sketch10 = body.newObject("Sketcher::SketchObject", "Sketch009")
sketch10.AttachmentSupport = (doc.getObject("YZ_Plane"), [""])
sketch10.MapMode = "FlatFace"
sketch10.AttachmentOffset = App.Placement(Vector(0, 0, 2), App.Rotation())
sketch10.addGeometry([
    Part.LineSegment(Vector(258, 85, 0), Vector(238, 85, 0)),
    Part.LineSegment(Vector(238, 85, 0), Vector(238, 65, 0)),
    Part.LineSegment(Vector(238, 65, 0), Vector(258, 65, 0)),
    Part.LineSegment(Vector(258, 65, 0), Vector(258, 85, 0)),
    Part.LineSegment(Vector(258, -65, 0), Vector(238, -65, 0)),
    Part.LineSegment(Vector(238, -65, 0), Vector(238, -85, 0)),
    Part.LineSegment(Vector(238, -85, 0), Vector(258, -85, 0)),
    Part.LineSegment(Vector(258, -85, 0), Vector(258, -65, 0)),
    Part.LineSegment(Vector(-238, -65, 0), Vector(-258, -65, 0)),
    Part.LineSegment(Vector(-258, -65, 0), Vector(-258, -85, 0)),
    Part.LineSegment(Vector(-258, -85, 0), Vector(-238, -85, 0)),
    Part.LineSegment(Vector(-238, -85, 0), Vector(-238, -65, 0)),
    Part.LineSegment(Vector(-238, 85, 0), Vector(-258, 85, 0)),
    Part.LineSegment(Vector(-258, 85, 0), Vector(-258, 65, 0)),
    Part.LineSegment(Vector(-258, 65, 0), Vector(-238, 65, 0)),
    Part.LineSegment(Vector(-238, 65, 0), Vector(-238, 85, 0)),
], False)
sketch10.addConstraint([
    Sketcher.Constraint("Coincident", 0, 2, 1, 1),
    Sketcher.Constraint("Coincident", 1, 2, 2, 1),
    Sketcher.Constraint("Coincident", 2, 2, 3, 1),
    Sketcher.Constraint("Coincident", 3, 2, 0, 1),
    Sketcher.Constraint("Coincident", 4, 2, 5, 1),
    Sketcher.Constraint("Coincident", 5, 2, 6, 1),
    Sketcher.Constraint("Coincident", 6, 2, 7, 1),
    Sketcher.Constraint("Coincident", 7, 2, 4, 1),
    Sketcher.Constraint("Coincident", 8, 2, 9, 1),
    Sketcher.Constraint("Coincident", 9, 2, 10, 1),
    Sketcher.Constraint("Coincident", 10, 2, 11, 1),
    Sketcher.Constraint("Coincident", 11, 2, 8, 1),
    Sketcher.Constraint("Coincident", 12, 2, 13, 1),
    Sketcher.Constraint("Coincident", 13, 2, 14, 1),
    Sketcher.Constraint("Coincident", 14, 2, 15, 1),
    Sketcher.Constraint("Coincident", 15, 2, 12, 1),
    Sketcher.Constraint("Horizontal", 0),
    Sketcher.Constraint("Vertical", 1),
    Sketcher.Constraint("Horizontal", 2),
    Sketcher.Constraint("Vertical", 3),
    Sketcher.Constraint("Horizontal", 4),
    Sketcher.Constraint("Vertical", 5),
    Sketcher.Constraint("Horizontal", 6),
    Sketcher.Constraint("Vertical", 7),
    Sketcher.Constraint("Horizontal", 8),
    Sketcher.Constraint("Vertical", 9),
    Sketcher.Constraint("Horizontal", 10),
    Sketcher.Constraint("Vertical", 11),
    Sketcher.Constraint("Horizontal", 12),
    Sketcher.Constraint("Vertical", 13),
    Sketcher.Constraint("Horizontal", 14),
    Sketcher.Constraint("Vertical", 15),
    Sketcher.Constraint("Symmetric", 2, 2, 8, 2, -1, 1),
    Sketcher.Constraint("Symmetric", 0, 2, 10, 2, -1, 1),
    Sketcher.Constraint("Symmetric", 6, 2, 12, 2, -1, 1),
    Sketcher.Constraint("Symmetric", 4, 2, 14, 2, -1, 1),
    Sketcher.Constraint("Symmetric", 7, 2, 8, 2, -2),
    Sketcher.Constraint("Symmetric", 5, 2, 10, 2, -2),
    Sketcher.Constraint("Equal", 14, 1),
    Sketcher.Constraint("DistanceX", 0, 2, 0, 1, Q("20 mm")),
    Sketcher.Constraint("DistanceX", -1, 1, 0, 2, Q("238 mm")),
    Sketcher.Constraint("DistanceY", -1, 1, 0, 2, Q("85 mm")),
])
pocket8 = body.newObject("PartDesign::Pocket", "Pocket007")
pocket8.Profile = sketch10
pocket8.Length = 0.01

doc.recompute()
